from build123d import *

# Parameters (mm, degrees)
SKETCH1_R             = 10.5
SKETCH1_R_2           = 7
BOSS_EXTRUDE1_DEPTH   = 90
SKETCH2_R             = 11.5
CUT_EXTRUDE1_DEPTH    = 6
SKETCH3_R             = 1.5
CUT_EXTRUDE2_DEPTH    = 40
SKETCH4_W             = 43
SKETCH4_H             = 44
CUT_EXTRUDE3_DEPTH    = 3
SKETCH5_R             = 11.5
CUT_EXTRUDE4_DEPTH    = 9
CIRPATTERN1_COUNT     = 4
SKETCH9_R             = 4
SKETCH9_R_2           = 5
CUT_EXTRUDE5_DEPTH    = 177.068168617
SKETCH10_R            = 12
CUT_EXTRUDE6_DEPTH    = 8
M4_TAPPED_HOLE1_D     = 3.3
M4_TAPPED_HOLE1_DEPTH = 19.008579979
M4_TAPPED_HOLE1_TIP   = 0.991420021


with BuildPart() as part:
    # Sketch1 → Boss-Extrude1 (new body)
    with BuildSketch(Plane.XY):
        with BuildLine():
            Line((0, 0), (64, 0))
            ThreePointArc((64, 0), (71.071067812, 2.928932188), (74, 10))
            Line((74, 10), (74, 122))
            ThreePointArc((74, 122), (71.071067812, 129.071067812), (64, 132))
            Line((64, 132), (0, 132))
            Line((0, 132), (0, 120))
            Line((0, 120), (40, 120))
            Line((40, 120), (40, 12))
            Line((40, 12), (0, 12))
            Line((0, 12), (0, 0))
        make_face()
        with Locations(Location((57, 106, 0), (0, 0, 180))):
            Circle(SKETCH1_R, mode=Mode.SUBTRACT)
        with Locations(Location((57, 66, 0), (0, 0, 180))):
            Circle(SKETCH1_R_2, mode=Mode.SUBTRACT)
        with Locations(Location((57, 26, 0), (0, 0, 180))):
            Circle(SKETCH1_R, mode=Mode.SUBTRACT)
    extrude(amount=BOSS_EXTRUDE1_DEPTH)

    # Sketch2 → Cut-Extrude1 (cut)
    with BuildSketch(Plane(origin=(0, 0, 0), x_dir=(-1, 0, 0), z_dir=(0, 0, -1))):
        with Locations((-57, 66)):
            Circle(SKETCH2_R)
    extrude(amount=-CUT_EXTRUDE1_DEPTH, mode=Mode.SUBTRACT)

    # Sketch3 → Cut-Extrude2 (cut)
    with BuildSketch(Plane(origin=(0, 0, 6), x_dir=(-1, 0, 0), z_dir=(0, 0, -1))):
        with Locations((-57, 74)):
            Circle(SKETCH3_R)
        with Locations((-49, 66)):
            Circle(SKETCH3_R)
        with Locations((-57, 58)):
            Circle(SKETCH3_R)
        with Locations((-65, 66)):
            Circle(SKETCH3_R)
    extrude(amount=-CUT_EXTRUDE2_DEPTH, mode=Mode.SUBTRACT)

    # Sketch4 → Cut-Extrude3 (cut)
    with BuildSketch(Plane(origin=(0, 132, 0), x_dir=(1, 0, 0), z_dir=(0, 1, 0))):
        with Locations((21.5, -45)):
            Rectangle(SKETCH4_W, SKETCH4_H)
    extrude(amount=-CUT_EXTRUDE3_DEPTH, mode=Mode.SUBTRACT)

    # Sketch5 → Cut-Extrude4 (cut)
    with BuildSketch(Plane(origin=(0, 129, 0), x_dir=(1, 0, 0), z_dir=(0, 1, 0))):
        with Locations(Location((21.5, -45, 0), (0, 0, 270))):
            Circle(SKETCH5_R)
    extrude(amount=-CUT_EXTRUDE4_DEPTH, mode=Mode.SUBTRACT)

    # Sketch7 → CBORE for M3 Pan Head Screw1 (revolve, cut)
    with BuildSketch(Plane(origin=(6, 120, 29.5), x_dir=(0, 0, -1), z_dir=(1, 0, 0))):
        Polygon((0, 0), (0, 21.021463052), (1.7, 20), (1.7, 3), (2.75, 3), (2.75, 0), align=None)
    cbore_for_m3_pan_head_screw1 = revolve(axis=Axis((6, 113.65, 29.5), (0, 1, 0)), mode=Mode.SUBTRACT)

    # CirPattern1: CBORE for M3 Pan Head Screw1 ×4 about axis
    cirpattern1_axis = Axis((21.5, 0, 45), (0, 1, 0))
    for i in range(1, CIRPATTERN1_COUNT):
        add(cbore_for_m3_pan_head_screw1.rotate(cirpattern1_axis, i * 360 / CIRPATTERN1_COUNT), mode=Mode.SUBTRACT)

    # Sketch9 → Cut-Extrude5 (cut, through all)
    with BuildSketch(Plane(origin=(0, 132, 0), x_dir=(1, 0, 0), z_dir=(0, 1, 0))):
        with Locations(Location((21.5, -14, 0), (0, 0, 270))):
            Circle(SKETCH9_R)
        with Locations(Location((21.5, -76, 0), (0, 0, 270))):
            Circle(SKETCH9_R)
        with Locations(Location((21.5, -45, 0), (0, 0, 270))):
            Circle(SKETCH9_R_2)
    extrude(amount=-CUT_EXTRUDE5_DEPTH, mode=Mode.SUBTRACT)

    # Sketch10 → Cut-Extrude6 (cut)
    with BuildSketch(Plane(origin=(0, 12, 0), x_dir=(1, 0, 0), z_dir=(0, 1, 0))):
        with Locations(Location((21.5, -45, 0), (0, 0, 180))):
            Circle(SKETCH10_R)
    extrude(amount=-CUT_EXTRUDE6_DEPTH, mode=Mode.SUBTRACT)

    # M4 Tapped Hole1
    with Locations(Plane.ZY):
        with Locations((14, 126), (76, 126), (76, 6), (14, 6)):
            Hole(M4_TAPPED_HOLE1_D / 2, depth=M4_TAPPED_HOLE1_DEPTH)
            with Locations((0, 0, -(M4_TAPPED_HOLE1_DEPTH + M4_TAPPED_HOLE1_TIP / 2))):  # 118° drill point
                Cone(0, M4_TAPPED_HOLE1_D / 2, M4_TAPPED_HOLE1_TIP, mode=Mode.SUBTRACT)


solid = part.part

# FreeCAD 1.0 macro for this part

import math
import FreeCAD as App
import Part
import Sketcher
from FreeCAD import Vector
Q = App.Units.Quantity

doc = App.newDocument("Part")
body = doc.addObject("PartDesign::Body", "Body")

# Sketch on XY plane
sketch1 = body.newObject("Sketcher::SketchObject", "Sketch")
sketch1.AttachmentSupport = (doc.getObject("XY_Plane"), [""])
sketch1.MapMode = "FlatFace"
sketch1.addGeometry(Part.LineSegment(Vector(0, 0, 0), Vector(64, 0, 0)), False)
sketch1.addGeometry(Part.ArcOfCircle(Part.Circle(Vector(64, 10, 0), Vector(0, 0, 1), 10), math.radians(-90), math.radians(0)), False)
sketch1.addGeometry(Part.LineSegment(Vector(74, 10, 0), Vector(74, 122, 0)), False)
sketch1.addGeometry(Part.ArcOfCircle(Part.Circle(Vector(64, 122, 0), Vector(0, 0, 1), 10), math.radians(0), math.radians(90)), False)
sketch1.addGeometry(Part.LineSegment(Vector(64, 132, 0), Vector(0, 132, 0)), False)
sketch1.addGeometry(Part.LineSegment(Vector(0, 132, 0), Vector(0, 120, 0)), False)
sketch1.addGeometry(Part.LineSegment(Vector(0, 120, 0), Vector(40, 120, 0)), False)
sketch1.addGeometry(Part.LineSegment(Vector(40, 120, 0), Vector(40, 12, 0)), False)
sketch1.addGeometry(Part.LineSegment(Vector(40, 12, 0), Vector(0, 12, 0)), False)
sketch1.addGeometry(Part.LineSegment(Vector(0, 12, 0), Vector(0, 0, 0)), False)
sketch1.addGeometry(Part.Circle(Vector(57, 26, 0), Vector(0, 0, 1), 10), False)
sketch1.addGeometry(Part.Circle(Vector(57, 66, 0), Vector(0, 0, 1), 7), False)
sketch1.addGeometry(Part.Circle(Vector(57, 106, 0), Vector(0, 0, 1), 10), False)
sketch1.addConstraint(Sketcher.Constraint("Tangent", 0, 2, 1, 1))
sketch1.addConstraint(Sketcher.Constraint("Tangent", 1, 2, 2, 1))
sketch1.addConstraint(Sketcher.Constraint("Tangent", 2, 2, 3, 1))
sketch1.addConstraint(Sketcher.Constraint("Tangent", 3, 2, 4, 1))
sketch1.addConstraint(Sketcher.Constraint("Coincident", 4, 2, 5, 1))
sketch1.addConstraint(Sketcher.Constraint("Coincident", 5, 2, 6, 1))
sketch1.addConstraint(Sketcher.Constraint("Coincident", 6, 2, 7, 1))
sketch1.addConstraint(Sketcher.Constraint("Coincident", 7, 2, 8, 1))
sketch1.addConstraint(Sketcher.Constraint("Coincident", 8, 2, 9, 1))
sketch1.addConstraint(Sketcher.Constraint("Coincident", 9, 2, 0, 1))
sketch1.addConstraint(Sketcher.Constraint("Horizontal", 0))
sketch1.addConstraint(Sketcher.Constraint("Vertical", 2))
sketch1.addConstraint(Sketcher.Constraint("Horizontal", 4))
sketch1.addConstraint(Sketcher.Constraint("Vertical", 5))
sketch1.addConstraint(Sketcher.Constraint("Horizontal", 6))
sketch1.addConstraint(Sketcher.Constraint("Vertical", 7))
sketch1.addConstraint(Sketcher.Constraint("Horizontal", 8))
sketch1.addConstraint(Sketcher.Constraint("Vertical", 9))
sketch1.addConstraint(Sketcher.Constraint("Coincident", 9, 2, -1, 1))
sketch1.addConstraint(Sketcher.Constraint("Equal", 1, 3))
sketch1.addConstraint(Sketcher.Constraint("Equal", 10, 12))
sketch1.addConstraint(Sketcher.Constraint("PointOnObject", 4, 2, -2))
sketch1.addConstraint(Sketcher.Constraint("Vertical", 10, 3, 11, 3))
sketch1.addConstraint(Sketcher.Constraint("Vertical", 11, 3, 12, 3))
sketch1.addConstraint(Sketcher.Constraint("Equal", 5, 9))
sketch1.addConstraint(Sketcher.Constraint("Diameter", 10, Q("21 mm")))
sketch1.addConstraint(Sketcher.Constraint("Diameter", 11, Q("14 mm")))
sketch1.addConstraint(Sketcher.Constraint("Radius", 1, Q("10 mm")))
sketch1.addConstraint(Sketcher.Constraint("DistanceX", 0, 1, 0, 2, Q("64 mm")))
sketch1.addConstraint(Sketcher.Constraint("DistanceX", 6, 1, 6, 2, Q("40 mm")))
sketch1.addConstraint(Sketcher.Constraint("DistanceY", 2, 1, 2, 2, Q("112 mm")))
sketch1.addConstraint(Sketcher.Constraint("DistanceY", 5, 2, 5, 1, Q("12 mm")))
sketch1.addConstraint(Sketcher.Constraint("DistanceX", -1, 1, 10, 3, Q("57 mm")))
sketch1.addConstraint(Sketcher.Constraint("DistanceY", -1, 1, 10, 3, Q("26 mm")))
sketch1.addConstraint(Sketcher.Constraint("DistanceY", -1, 1, 11, 3, Q("66 mm")))
sketch1.addConstraint(Sketcher.Constraint("DistanceY", -1, 1, 12, 3, Q("106 mm")))
pad1 = body.newObject("PartDesign::Pad", "Pad")
pad1.Profile = sketch1
pad1.Length = 90

# Sketch on XY plane
sketch2 = body.newObject("Sketcher::SketchObject", "Sketch001")
sketch2.AttachmentSupport = (doc.getObject("XY_Plane"), [""])
sketch2.MapMode = "FlatFace"
sketch2.addGeometry(Part.Circle(Vector(57, 66, 0), Vector(0, 0, 1), 12), False)
sketch2.addConstraint(Sketcher.Constraint("Diameter", 0, Q("23 mm")))
sketch2.addConstraint(Sketcher.Constraint("DistanceX", -1, 1, 0, 3, Q("57 mm")))
sketch2.addConstraint(Sketcher.Constraint("DistanceY", -1, 1, 0, 3, Q("66 mm")))
pocket1 = body.newObject("PartDesign::Pocket", "Pocket")
pocket1.Profile = sketch2
pocket1.Length = 6
pocket1.Reversed = True

# Sketch on XY plane
sketch3 = body.newObject("Sketcher::SketchObject", "Sketch002")
sketch3.AttachmentSupport = (doc.getObject("XY_Plane"), [""])
sketch3.MapMode = "FlatFace"
sketch3.AttachmentOffset = App.Placement(Vector(0, 0, 6), App.Rotation())
sketch3.addGeometry(Part.Circle(Vector(57, 74, 0), Vector(0, 0, 1), 1.5), False)
sketch3.addGeometry(Part.Circle(Vector(49, 66, 0), Vector(0, 0, 1), 1.5), False)
sketch3.addGeometry(Part.Circle(Vector(57, 58, 0), Vector(0, 0, 1), 1.5), False)
sketch3.addGeometry(Part.Circle(Vector(65, 66, 0), Vector(0, 0, 1), 1.5), False)
sketch3.addConstraint(Sketcher.Constraint("Equal", 0, 1))
sketch3.addConstraint(Sketcher.Constraint("Equal", 1, 2))
sketch3.addConstraint(Sketcher.Constraint("Equal", 2, 3))
sketch3.addConstraint(Sketcher.Constraint("Horizontal", 1, 3, 3, 3))
sketch3.addConstraint(Sketcher.Constraint("Vertical", 0, 3, 2, 3))
sketch3.addConstraint(Sketcher.Constraint("Diameter", 0, Q("3 mm")))
sketch3.addConstraint(Sketcher.Constraint("DistanceX", -1, 1, 0, 3, Q("57 mm")))
sketch3.addConstraint(Sketcher.Constraint("DistanceY", -1, 1, 0, 3, Q("74 mm")))
sketch3.addConstraint(Sketcher.Constraint("DistanceX", -1, 1, 1, 3, Q("49 mm")))
sketch3.addConstraint(Sketcher.Constraint("DistanceY", -1, 1, 1, 3, Q("66 mm")))
sketch3.addConstraint(Sketcher.Constraint("DistanceY", -1, 1, 2, 3, Q("58 mm")))
sketch3.addConstraint(Sketcher.Constraint("DistanceX", -1, 1, 3, 3, Q("65 mm")))
pocket2 = body.newObject("PartDesign::Pocket", "Pocket001")
pocket2.Profile = sketch3
pocket2.Length = 40
pocket2.Reversed = True

# Sketch on XZ plane
sketch4 = body.newObject("Sketcher::SketchObject", "Sketch003")
sketch4.AttachmentSupport = (doc.getObject("XZ_Plane"), [""])
sketch4.MapMode = "FlatFace"
sketch4.AttachmentOffset = App.Placement(Vector(0, 0, -132), App.Rotation())
sketch4.addGeometry(Part.LineSegment(Vector(0, 23, 0), Vector(0, 67, 0)), False)
sketch4.addGeometry(Part.LineSegment(Vector(0, 67, 0), Vector(43, 67, 0)), False)
sketch4.addGeometry(Part.LineSegment(Vector(43, 67, 0), Vector(43, 23, 0)), False)
sketch4.addGeometry(Part.LineSegment(Vector(43, 23, 0), Vector(0, 23, 0)), False)
sketch4.addConstraint(Sketcher.Constraint("Coincident", 0, 2, 1, 1))
sketch4.addConstraint(Sketcher.Constraint("Coincident", 1, 2, 2, 1))
sketch4.addConstraint(Sketcher.Constraint("Coincident", 2, 2, 3, 1))
sketch4.addConstraint(Sketcher.Constraint("Coincident", 3, 2, 0, 1))
sketch4.addConstraint(Sketcher.Constraint("Vertical", 0))
sketch4.addConstraint(Sketcher.Constraint("Horizontal", 1))
sketch4.addConstraint(Sketcher.Constraint("Vertical", 2))
sketch4.addConstraint(Sketcher.Constraint("Horizontal", 3))
sketch4.addConstraint(Sketcher.Constraint("PointOnObject", 0, 2, -2))
sketch4.addConstraint(Sketcher.Constraint("DistanceX", 1, 1, 1, 2, Q("43 mm")))
sketch4.addConstraint(Sketcher.Constraint("DistanceY", 0, 1, 0, 2, Q("44 mm")))
sketch4.addConstraint(Sketcher.Constraint("DistanceY", -1, 1, 0, 2, Q("67 mm")))
pocket3 = body.newObject("PartDesign::Pocket", "Pocket002")
pocket3.Profile = sketch4
pocket3.Length = 3
pocket3.Reversed = True

# Sketch on XZ plane
sketch5 = body.newObject("Sketcher::SketchObject", "Sketch004")
sketch5.AttachmentSupport = (doc.getObject("XZ_Plane"), [""])
sketch5.MapMode = "FlatFace"
sketch5.AttachmentOffset = App.Placement(Vector(0, 0, -129), App.Rotation())
sketch5.addGeometry(Part.Circle(Vector(22, 45, 0), Vector(0, 0, 1), 12), False)
sketch5.addConstraint(Sketcher.Constraint("Diameter", 0, Q("23 mm")))
sketch5.addConstraint(Sketcher.Constraint("DistanceY", -1, 1, 0, 3, Q("45 mm")))
sketch5.addConstraint(Sketcher.Constraint("DistanceX", -1, 1, 0, 3, Q("21.5 mm")))
pocket4 = body.newObject("PartDesign::Pocket", "Pocket003")
pocket4.Profile = sketch5
pocket4.Length = 9
pocket4.Reversed = True

# Sketch on YZ plane
sketch6 = body.newObject("Sketcher::SketchObject", "Sketch005")
sketch6.AttachmentSupport = (doc.getObject("YZ_Plane"), [""])
sketch6.MapMode = "FlatFace"
sketch6.AttachmentOffset = App.Placement(Vector(0, 0, 6), App.Rotation())
sketch6.addGeometry(Part.LineSegment(Vector(141, 29.5, 0), Vector(120, 29.5, 0)), False)
sketch6.addGeometry(Part.LineSegment(Vector(120, 29.5, 0), Vector(120, 26.8, 0)), False)
sketch6.addGeometry(Part.LineSegment(Vector(120, 26.8, 0), Vector(123, 26.8, 0)), False)
sketch6.addGeometry(Part.LineSegment(Vector(123, 26.8, 0), Vector(123, 27.8, 0)), False)
sketch6.addGeometry(Part.LineSegment(Vector(123, 27.8, 0), Vector(140, 27.8, 0)), False)
sketch6.addGeometry(Part.LineSegment(Vector(140, 27.8, 0), Vector(141, 29.5, 0)), False)
sketch6.addGeometry(Part.LineSegment(Vector(120, 29.5, 0), Vector(141, 29.5, 0)), True)  # axis
sketch6.addConstraint(Sketcher.Constraint("Coincident", 0, 2, 1, 1))
sketch6.addConstraint(Sketcher.Constraint("Coincident", 1, 2, 2, 1))
sketch6.addConstraint(Sketcher.Constraint("Coincident", 2, 2, 3, 1))
sketch6.addConstraint(Sketcher.Constraint("Coincident", 3, 2, 4, 1))
sketch6.addConstraint(Sketcher.Constraint("Coincident", 4, 2, 5, 1))
sketch6.addConstraint(Sketcher.Constraint("Coincident", 5, 2, 0, 1))
sketch6.addConstraint(Sketcher.Constraint("Horizontal", 0))
sketch6.addConstraint(Sketcher.Constraint("Vertical", 1))
sketch6.addConstraint(Sketcher.Constraint("Horizontal", 2))
sketch6.addConstraint(Sketcher.Constraint("Vertical", 3))
sketch6.addConstraint(Sketcher.Constraint("Horizontal", 4))
sketch6.addConstraint(Sketcher.Constraint("Horizontal", 6))
sketch6.addConstraint(Sketcher.Constraint("Coincident", 6, 1, 0, 2))
sketch6.addConstraint(Sketcher.Constraint("Equal", 0, 6))
sketch6.addConstraint(Sketcher.Constraint("DistanceX", 2, 1, 2, 2, Q("3 mm")))
sketch6.addConstraint(Sketcher.Constraint("DistanceX", 4, 1, 4, 2, Q("17 mm")))
sketch6.addConstraint(Sketcher.Constraint("Angle", 5, Q("59 deg")))
sketch6.addConstraint(Sketcher.Constraint("DistanceX", -1, 1, 0, 2, Q("120 mm")))
sketch6.addConstraint(Sketcher.Constraint("DistanceY", 1, 2, 1, 1, Q("2.75 mm")))
sketch6.addConstraint(Sketcher.Constraint("DistanceY", 3, 1, 3, 2, Q("1.05 mm")))
sketch6.addConstraint(Sketcher.Constraint("DistanceY", -1, 1, 0, 2, Q("29.5 mm")))
groove = body.newObject("PartDesign::Groove", "Groove")
groove.Profile = sketch6
groove.ReferenceAxis = (sketch6, ["Axis0"])
groove.Angle = 360
doc.recompute()

datumline = body.newObject("PartDesign::Line", "DatumLine")
datumline.Placement = App.Placement(Vector(21.5, 0, 45), App.Rotation(Vector(0, 0, 1), Vector(0, 1, 0)))
polarpattern = body.newObject("PartDesign::PolarPattern", "PolarPattern")
polarpattern.Originals = [groove]
polarpattern.Axis = (datumline, [""])
polarpattern.Angle = 360
polarpattern.Occurrences = 4
body.Tip = polarpattern

# Sketch on XZ plane
sketch7 = body.newObject("Sketcher::SketchObject", "Sketch006")
sketch7.AttachmentSupport = (doc.getObject("XZ_Plane"), [""])
sketch7.MapMode = "FlatFace"
sketch7.AttachmentOffset = App.Placement(Vector(0, 0, -132), App.Rotation())
sketch7.addGeometry(Part.Circle(Vector(21.5, 14, 0), Vector(0, 0, 1), 4), False)
sketch7.addGeometry(Part.Circle(Vector(21.5, 76, 0), Vector(0, 0, 1), 4), False)
sketch7.addGeometry(Part.Circle(Vector(21.5, 45, 0), Vector(0, 0, 1), 5), False)
sketch7.addConstraint(Sketcher.Constraint("Equal", 0, 1))
sketch7.addConstraint(Sketcher.Constraint("Vertical", 0, 3, 1, 3))
sketch7.addConstraint(Sketcher.Constraint("Vertical", 1, 3, 2, 3))
sketch7.addConstraint(Sketcher.Constraint("Diameter", 0, Q("8 mm")))
sketch7.addConstraint(Sketcher.Constraint("Diameter", 2, Q("10 mm")))
sketch7.addConstraint(Sketcher.Constraint("DistanceY", -1, 1, 0, 3, Q("14 mm")))
sketch7.addConstraint(Sketcher.Constraint("DistanceY", -1, 1, 1, 3, Q("76 mm")))
sketch7.addConstraint(Sketcher.Constraint("DistanceY", -1, 1, 2, 3, Q("45 mm")))
sketch7.addConstraint(Sketcher.Constraint("DistanceX", -1, 1, 0, 3, Q("21.5 mm")))
pocket5 = body.newObject("PartDesign::Pocket", "Pocket004")
pocket5.Profile = sketch7
pocket5.Type = "ThroughAll"
pocket5.Reversed = True

# Sketch on XZ plane
sketch8 = body.newObject("Sketcher::SketchObject", "Sketch007")
sketch8.AttachmentSupport = (doc.getObject("XZ_Plane"), [""])
sketch8.MapMode = "FlatFace"
sketch8.AttachmentOffset = App.Placement(Vector(0, 0, -12), App.Rotation())
sketch8.addGeometry(Part.Circle(Vector(22, 45, 0), Vector(0, 0, 1), 12), False)
sketch8.addConstraint(Sketcher.Constraint("Diameter", 0, Q("24 mm")))
sketch8.addConstraint(Sketcher.Constraint("DistanceY", -1, 1, 0, 3, Q("45 mm")))
sketch8.addConstraint(Sketcher.Constraint("DistanceX", -1, 1, 0, 3, Q("21.5 mm")))
pocket6 = body.newObject("PartDesign::Pocket", "Pocket005")
pocket6.Profile = sketch8
pocket6.Length = 8
pocket6.Reversed = True

# Sketch on YZ plane
sketch9 = body.newObject("Sketcher::SketchObject", "Sketch008")
sketch9.AttachmentSupport = (doc.getObject("YZ_Plane"), [""])
sketch9.MapMode = "FlatFace"
sketch9.addGeometry(Part.Circle(Vector(126, 14, 0), Vector(0, 0, 1), 1.6), False)
sketch9.addGeometry(Part.Circle(Vector(126, 76, 0), Vector(0, 0, 1), 1.6), False)
sketch9.addGeometry(Part.Circle(Vector(6, 76, 0), Vector(0, 0, 1), 1.6), False)
sketch9.addGeometry(Part.Circle(Vector(6, 14, 0), Vector(0, 0, 1), 1.6), False)
sketch9.addConstraint(Sketcher.Constraint("Equal", 0, 1))
sketch9.addConstraint(Sketcher.Constraint("Equal", 1, 2))
sketch9.addConstraint(Sketcher.Constraint("Equal", 2, 3))
sketch9.addConstraint(Sketcher.Constraint("Horizontal", 1, 3, 2, 3))
sketch9.addConstraint(Sketcher.Constraint("Horizontal", 0, 3, 3, 3))
sketch9.addConstraint(Sketcher.Constraint("Vertical", 0, 3, 1, 3))
sketch9.addConstraint(Sketcher.Constraint("Vertical", 2, 3, 3, 3))
sketch9.addConstraint(Sketcher.Constraint("Diameter", 0, Q("3.3 mm")))
sketch9.addConstraint(Sketcher.Constraint("DistanceX", -1, 1, 0, 3, Q("126 mm")))
sketch9.addConstraint(Sketcher.Constraint("DistanceY", -1, 1, 0, 3, Q("14 mm")))
sketch9.addConstraint(Sketcher.Constraint("DistanceY", -1, 1, 1, 3, Q("76 mm")))
sketch9.addConstraint(Sketcher.Constraint("DistanceX", -1, 1, 2, 3, Q("6 mm")))
doc.recompute()
hole = body.newObject("PartDesign::Hole", "Hole")
hole.Profile = sketch9
hole.ThreadType = "None"
hole.Diameter = 3.3
hole.DepthType = "Dimension"
hole.Depth = 19.00858
hole.DrillPoint = "Angled"
hole.DrillPointAngle = 118
hole.Reversed = True

doc.recompute()
